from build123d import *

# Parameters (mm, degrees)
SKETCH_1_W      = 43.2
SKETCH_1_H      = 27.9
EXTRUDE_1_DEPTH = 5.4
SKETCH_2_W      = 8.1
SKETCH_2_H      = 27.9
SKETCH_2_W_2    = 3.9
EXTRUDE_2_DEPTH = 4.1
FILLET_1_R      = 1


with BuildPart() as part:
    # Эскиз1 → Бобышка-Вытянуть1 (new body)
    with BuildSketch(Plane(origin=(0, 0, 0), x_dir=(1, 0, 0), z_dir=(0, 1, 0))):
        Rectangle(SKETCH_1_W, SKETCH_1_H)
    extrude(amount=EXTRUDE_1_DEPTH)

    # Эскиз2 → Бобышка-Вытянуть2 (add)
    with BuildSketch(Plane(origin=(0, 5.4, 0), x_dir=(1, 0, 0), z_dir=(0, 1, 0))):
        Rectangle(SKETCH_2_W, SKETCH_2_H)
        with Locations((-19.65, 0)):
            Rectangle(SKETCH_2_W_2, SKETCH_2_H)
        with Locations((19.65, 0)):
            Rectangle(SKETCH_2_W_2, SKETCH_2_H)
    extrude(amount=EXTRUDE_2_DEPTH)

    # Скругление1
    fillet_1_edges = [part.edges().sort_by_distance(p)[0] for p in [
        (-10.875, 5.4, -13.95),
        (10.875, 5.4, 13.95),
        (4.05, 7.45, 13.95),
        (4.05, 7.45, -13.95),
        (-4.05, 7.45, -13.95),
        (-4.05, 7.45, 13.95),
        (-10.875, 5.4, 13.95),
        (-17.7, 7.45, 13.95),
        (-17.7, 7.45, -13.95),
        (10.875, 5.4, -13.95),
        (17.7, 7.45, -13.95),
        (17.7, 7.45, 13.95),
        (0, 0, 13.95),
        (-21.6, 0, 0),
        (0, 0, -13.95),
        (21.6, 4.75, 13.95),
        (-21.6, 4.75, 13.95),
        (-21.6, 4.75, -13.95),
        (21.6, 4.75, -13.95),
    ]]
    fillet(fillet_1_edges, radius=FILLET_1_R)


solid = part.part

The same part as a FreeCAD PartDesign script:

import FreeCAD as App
import Part
import Sketcher
Q = App.Units.Quantity


def edges_at(feature, points):
    """Names of the edges that pass closest to the given points."""
    edges = feature.Shape.Edges
    near = lambda p: min(range(len(edges)), key=lambda i: edges[i].distToShape(Part.Vertex(*p))[0])
    return sorted({f"Edge{near(p) + 1}" for p in points})


def add_polygon(sketch, points):
    """Adds a closed chain of lines whose ends are joined by coincident constraints."""
    first, n = sketch.GeometryCount, len(points)
    for a, b in zip(points, points[1:] + points[:1]):
        sketch.addGeometry(Part.LineSegment(App.Vector(*a, 0), App.Vector(*b, 0)), False)
    for i in range(n):
        sketch.addConstraint(Sketcher.Constraint("Coincident", first + i, 2, first + (i + 1) % n, 1))

doc = App.newDocument("Part")
body = doc.addObject("PartDesign::Body", "Body")

# Sketch on XZ plane
sketch1 = doc.addObject("Sketcher::SketchObject", "Sketch")
body.addObject(sketch1)
sketch1.AttachmentSupport = (doc.XZ_Plane, [""])
sketch1.MapMode = "FlatFace"
add_polygon(sketch1, [(-22, -14), (-22, 14), (22, 14), (22, -14)])  # lines 0-3
sketch1.addConstraint([
    Sketcher.Constraint("Vertical", 0),
    Sketcher.Constraint("Horizontal", 1),
    Sketcher.Constraint("Vertical", 2),
    Sketcher.Constraint("Horizontal", 3),
    Sketcher.Constraint("Symmetric", 0, 2, 2, 2, -1, 1),
    Sketcher.Constraint("DistanceX", 1, 1, 1, 2, Q("43.2 mm")),
    Sketcher.Constraint("DistanceY", 0, 1, 0, 2, Q("27.9 mm")),
])
pad1 = doc.addObject("PartDesign::Pad", "Pad")
body.addObject(pad1)
pad1.Profile = sketch1
pad1.Length = 5.4
pad1.Reversed = True

# Sketch on XZ plane
sketch2 = doc.addObject("Sketcher::SketchObject", "Sketch001")
body.addObject(sketch2)
sketch2.AttachmentSupport = (doc.XZ_Plane, [""])
sketch2.MapMode = "FlatFace"
sketch2.AttachmentOffset = App.Placement(App.Vector(0, 0, -5.4), App.Rotation())
add_polygon(sketch2, [(-4, -13.9), (-4, 13.9), (4, 13.9), (4, -13.9)])  # lines 0-3
add_polygon(sketch2, [(-21.6, -13.9), (-21.6, 13.9), (-17.7, 13.9), (-17.7, -13.9)])  # lines 4-7
add_polygon(sketch2, [(17.7, -13.9), (17.7, 13.9), (21.6, 13.9), (21.6, -13.9)])  # lines 8-11
sketch2.addConstraint([
    Sketcher.Constraint("Vertical", 0),
    Sketcher.Constraint("Horizontal", 1),
    Sketcher.Constraint("Vertical", 2),
    Sketcher.Constraint("Horizontal", 3),
    Sketcher.Constraint("Vertical", 4),
    Sketcher.Constraint("Horizontal", 5),
    Sketcher.Constraint("Vertical", 6),
    Sketcher.Constraint("Horizontal", 7),
    Sketcher.Constraint("Vertical", 8),
    Sketcher.Constraint("Horizontal", 9),
    Sketcher.Constraint("Vertical", 10),
    Sketcher.Constraint("Horizontal", 11),
    Sketcher.Constraint("Symmetric", 0, 2, 2, 2, -1, 1),
    Sketcher.Constraint("Symmetric", 6, 2, 8, 2, -1, 1),
    Sketcher.Constraint("Symmetric", 4, 2, 10, 2, -1, 1),
    Sketcher.Constraint("Horizontal", 1, 2, 4, 2),
    Sketcher.Constraint("Horizontal", 3, 2, 6, 2),
    Sketcher.Constraint("DistanceX", 1, 1, 1, 2, Q("8.1 mm")),
    Sketcher.Constraint("DistanceX", 5, 1, 5, 2, Q("3.9 mm")),
    Sketcher.Constraint("DistanceY", 0, 1, 0, 2, Q("27.9 mm")),
    Sketcher.Constraint("DistanceX", 4, 2, -1, 1, Q("21.6 mm")),
])
pad2 = doc.addObject("PartDesign::Pad", "Pad001")
body.addObject(pad2)
pad2.Profile = sketch2
pad2.Length = 4.1
pad2.Reversed = True
doc.recompute()

fillet = doc.addObject("PartDesign::Fillet", "Fillet")
body.addObject(fillet)
fillet.Base = (pad2, edges_at(pad2, [
    (-10.875, 5.4, -13.95),
    (10.875, 5.4, 13.95),
    (4.05, 7.45, 13.95),
    (4.05, 7.45, -13.95),
    (-4.05, 7.45, -13.95),
    (-4.05, 7.45, 13.95),
    (-10.875, 5.4, 13.95),
    (-17.7, 7.45, 13.95),
    (-17.7, 7.45, -13.95),
    (10.875, 5.4, -13.95),
    (17.7, 7.45, -13.95),
    (17.7, 7.45, 13.95),
    (0, 0, 13.95),
    (-21.6, 0, 0),
    (0, 0, -13.95),
    (21.6, 4.75, 13.95),
    (-21.6, 4.75, 13.95),
    (-21.6, 4.75, -13.95),
    (21.6, 4.75, -13.95),
]))
fillet.Radius = 1

doc.recompute()
